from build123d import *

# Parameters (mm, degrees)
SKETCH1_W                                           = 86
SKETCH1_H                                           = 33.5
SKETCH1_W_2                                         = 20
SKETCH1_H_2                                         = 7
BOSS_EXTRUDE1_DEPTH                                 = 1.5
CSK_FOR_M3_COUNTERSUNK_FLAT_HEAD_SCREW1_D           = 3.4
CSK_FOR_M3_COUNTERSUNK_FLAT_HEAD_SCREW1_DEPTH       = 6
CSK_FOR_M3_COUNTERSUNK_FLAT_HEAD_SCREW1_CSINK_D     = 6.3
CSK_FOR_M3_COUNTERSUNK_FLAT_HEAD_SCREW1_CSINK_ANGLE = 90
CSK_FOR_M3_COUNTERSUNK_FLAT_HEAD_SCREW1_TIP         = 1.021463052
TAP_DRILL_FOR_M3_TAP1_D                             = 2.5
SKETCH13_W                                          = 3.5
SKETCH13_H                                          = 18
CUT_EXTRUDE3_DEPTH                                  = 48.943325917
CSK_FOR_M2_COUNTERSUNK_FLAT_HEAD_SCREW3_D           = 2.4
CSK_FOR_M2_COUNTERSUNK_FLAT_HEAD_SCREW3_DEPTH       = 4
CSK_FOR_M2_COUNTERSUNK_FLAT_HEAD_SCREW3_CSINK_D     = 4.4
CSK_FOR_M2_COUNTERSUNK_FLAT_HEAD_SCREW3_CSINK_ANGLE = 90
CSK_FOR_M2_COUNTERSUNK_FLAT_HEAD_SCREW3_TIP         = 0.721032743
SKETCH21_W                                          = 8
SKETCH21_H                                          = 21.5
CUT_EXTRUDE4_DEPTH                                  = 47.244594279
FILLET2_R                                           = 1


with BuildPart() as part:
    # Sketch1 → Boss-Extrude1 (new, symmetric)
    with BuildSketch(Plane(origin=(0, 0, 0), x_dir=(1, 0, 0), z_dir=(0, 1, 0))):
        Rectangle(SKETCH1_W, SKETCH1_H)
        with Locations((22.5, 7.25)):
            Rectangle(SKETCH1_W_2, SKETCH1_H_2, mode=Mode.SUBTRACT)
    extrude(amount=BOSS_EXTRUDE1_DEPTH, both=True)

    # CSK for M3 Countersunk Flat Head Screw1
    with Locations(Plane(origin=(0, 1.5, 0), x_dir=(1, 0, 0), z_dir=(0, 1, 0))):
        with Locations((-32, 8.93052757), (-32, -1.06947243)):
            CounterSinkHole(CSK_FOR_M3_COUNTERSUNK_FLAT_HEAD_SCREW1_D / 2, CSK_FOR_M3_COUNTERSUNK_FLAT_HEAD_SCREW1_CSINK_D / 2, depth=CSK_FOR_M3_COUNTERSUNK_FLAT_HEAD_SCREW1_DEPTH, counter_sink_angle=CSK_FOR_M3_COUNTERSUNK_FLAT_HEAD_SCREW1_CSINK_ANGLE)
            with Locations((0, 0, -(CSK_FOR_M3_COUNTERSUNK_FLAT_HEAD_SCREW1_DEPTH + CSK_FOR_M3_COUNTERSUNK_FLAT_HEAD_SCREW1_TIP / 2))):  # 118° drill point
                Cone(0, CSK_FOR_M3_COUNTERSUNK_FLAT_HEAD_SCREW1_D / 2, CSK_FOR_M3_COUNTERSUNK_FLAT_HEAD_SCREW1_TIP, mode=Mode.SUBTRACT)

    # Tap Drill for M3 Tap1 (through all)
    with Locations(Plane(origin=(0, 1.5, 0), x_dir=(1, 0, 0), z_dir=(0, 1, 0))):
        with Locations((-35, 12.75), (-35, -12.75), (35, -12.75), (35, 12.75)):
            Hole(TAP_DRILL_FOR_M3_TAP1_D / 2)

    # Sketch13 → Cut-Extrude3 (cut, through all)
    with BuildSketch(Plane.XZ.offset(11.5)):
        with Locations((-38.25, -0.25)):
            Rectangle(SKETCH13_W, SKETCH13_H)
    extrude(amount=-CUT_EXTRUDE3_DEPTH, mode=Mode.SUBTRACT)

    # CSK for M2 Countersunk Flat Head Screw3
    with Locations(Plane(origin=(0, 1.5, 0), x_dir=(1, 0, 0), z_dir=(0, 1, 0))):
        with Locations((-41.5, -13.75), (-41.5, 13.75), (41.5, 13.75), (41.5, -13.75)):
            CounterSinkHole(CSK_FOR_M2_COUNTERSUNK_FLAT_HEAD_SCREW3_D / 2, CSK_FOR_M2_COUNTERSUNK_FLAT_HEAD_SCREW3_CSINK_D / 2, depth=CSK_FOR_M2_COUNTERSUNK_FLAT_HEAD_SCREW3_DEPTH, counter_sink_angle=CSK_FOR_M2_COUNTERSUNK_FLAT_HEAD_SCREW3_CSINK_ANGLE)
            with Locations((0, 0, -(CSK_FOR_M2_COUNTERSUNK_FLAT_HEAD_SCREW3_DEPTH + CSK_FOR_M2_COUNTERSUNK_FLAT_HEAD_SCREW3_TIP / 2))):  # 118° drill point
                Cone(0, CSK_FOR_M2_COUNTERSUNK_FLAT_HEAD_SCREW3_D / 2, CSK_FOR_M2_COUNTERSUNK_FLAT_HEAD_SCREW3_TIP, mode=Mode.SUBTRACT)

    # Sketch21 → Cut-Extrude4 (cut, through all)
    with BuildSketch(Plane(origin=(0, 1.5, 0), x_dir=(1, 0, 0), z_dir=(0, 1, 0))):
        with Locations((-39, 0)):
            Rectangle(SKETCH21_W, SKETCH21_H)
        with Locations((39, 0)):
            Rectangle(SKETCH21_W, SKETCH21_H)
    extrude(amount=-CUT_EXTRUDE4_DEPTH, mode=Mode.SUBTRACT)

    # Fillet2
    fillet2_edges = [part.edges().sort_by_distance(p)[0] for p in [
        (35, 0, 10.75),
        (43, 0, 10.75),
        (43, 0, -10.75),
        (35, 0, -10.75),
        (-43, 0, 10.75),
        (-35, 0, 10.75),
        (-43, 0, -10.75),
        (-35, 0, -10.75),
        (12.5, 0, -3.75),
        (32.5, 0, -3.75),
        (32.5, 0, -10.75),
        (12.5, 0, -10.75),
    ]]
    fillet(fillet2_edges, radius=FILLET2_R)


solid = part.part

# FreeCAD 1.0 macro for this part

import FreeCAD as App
import Part
import Sketcher

V = App.Vector


def edges_at(feature, points):
    """Names of the edges that pass closest to the given points."""
    edges = feature.Shape.Edges
    near = lambda p: min(range(len(edges)), key=lambda i: edges[i].distToShape(Part.Vertex(*p))[0])
    return sorted({f"Edge{near(p) + 1}" for p in points})

doc = App.newDocument("Part")
params = doc.addObject("Spreadsheet::Sheet", "Params")
for row, (alias, value) in enumerate([
    ("sketch1_width", "86 mm"),
    ("sketch1_width2", "20 mm"),
    ("sketch1_height", "7 mm"),
    ("sketch1_height2", "33.5 mm"),
    ("pad1_length", "3 mm"),
    ("sketch2_diameter", "3.4 mm"),
    ("hole_diameter", "3.4 mm"),
    ("hole_depth", "6 mm"),
    ("hole_csink_diameter", "6.3 mm"),
    ("sketch3_diameter", "2.5 mm"),
    ("hole2_diameter", "2.5 mm"),
    ("sketch4_height", "18 mm"),
    ("sketch4_width", "3.5 mm"),
    ("sketch5_diameter", "2.4 mm"),
    ("hole3_diameter", "2.4 mm"),
    ("hole3_depth", "4 mm"),
    ("hole3_csink_diameter", "4.4 mm"),
    ("sketch6_width", "8 mm"),
    ("sketch6_height", "21.5 mm"),
    ("fillet_radius", "1 mm"),
], start=1):
    params.set(f"A{row}", alias)
    params.set(f"B{row}", "=" + value)
    params.setAlias(f"B{row}", alias)

body = doc.addObject("PartDesign::Body", "Body")

sketch1 = doc.addObject("Sketcher::SketchObject", "Sketch")
body.addObject(sketch1)
sketch1.AttachmentSupport = (doc.XZ_Plane, [""])
sketch1.MapMode = "FlatFace"
sketch1.addGeometry([
    Part.LineSegment(V(-43, -17, 0), V(-43, 17, 0)),
    Part.LineSegment(V(-43, 17, 0), V(43, 17, 0)),
    Part.LineSegment(V(43, 17, 0), V(43, -17, 0)),
    Part.LineSegment(V(43, -17, 0), V(-43, -17, 0)),
    Part.LineSegment(V(32, -4, 0), V(12, -4, 0)),
    Part.LineSegment(V(12, -4, 0), V(12, -11, 0)),
    Part.LineSegment(V(12, -11, 0), V(32, -11, 0)),
    Part.LineSegment(V(32, -11, 0), V(32, -4, 0)),
], False)
sketch1.addConstraint([
    Sketcher.Constraint("Coincident", 0, 2, 1, 1),
    Sketcher.Constraint("Coincident", 1, 2, 2, 1),
    Sketcher.Constraint("Coincident", 2, 2, 3, 1),
    Sketcher.Constraint("Coincident", 3, 2, 0, 1),
    Sketcher.Constraint("Coincident", 4, 2, 5, 1),
    Sketcher.Constraint("Coincident", 5, 2, 6, 1),
    Sketcher.Constraint("Coincident", 6, 2, 7, 1),
    Sketcher.Constraint("Coincident", 7, 2, 4, 1),
    Sketcher.Constraint("Vertical", 0),
    Sketcher.Constraint("Horizontal", 1),
    Sketcher.Constraint("Vertical", 2),
    Sketcher.Constraint("Horizontal", 3),
    Sketcher.Constraint("Horizontal", 4),
    Sketcher.Constraint("Vertical", 5),
    Sketcher.Constraint("Horizontal", 6),
    Sketcher.Constraint("Vertical", 7),
    Sketcher.Constraint("Symmetric", 0, 2, 2, 2, -1, 1),
    Sketcher.Constraint("DistanceX", 1, 1, 1, 2, 86.0),
    Sketcher.Constraint("DistanceX", 4, 2, 4, 1, 20.0),
    Sketcher.Constraint("DistanceY", 5, 2, 5, 1, 7.0),
    Sketcher.Constraint("DistanceY", 0, 1, 0, 2, 33.5),
    Sketcher.Constraint("DistanceY", 2, 2, 4, 2, 13.0),
    Sketcher.Constraint("DistanceX", -1, 1, 4, 2, 12.5),
])
sketch1.setExpression("Constraints[17]", "Params.sketch1_width")
sketch1.setExpression("Constraints[18]", "Params.sketch1_width2")
sketch1.setExpression("Constraints[19]", "Params.sketch1_height")
sketch1.setExpression("Constraints[20]", "Params.sketch1_height2")
pad1 = doc.addObject("PartDesign::Pad", "Pad")
body.addObject(pad1)
pad1.Profile = sketch1
pad1.setExpression("Length", "Params.pad1_length")
pad1.Midplane = True

sketch2 = doc.addObject("Sketcher::SketchObject", "Sketch001")
body.addObject(sketch2)
sketch2.AttachmentSupport = (doc.XZ_Plane, [""])
sketch2.MapMode = "FlatFace"
sketch2.AttachmentOffset = App.Placement(V(0, 0, -1.5), App.Rotation())
sketch2.addGeometry([
    Part.Circle(V(-32, -8.9, 0), V(0, 0, 1), 1.7),
    Part.Circle(V(-32, 1.1, 0), V(0, 0, 1), 1.7),
], False)
sketch2.addConstraint([
    Sketcher.Constraint("Equal", 0, 1),
    Sketcher.Constraint("Vertical", 0, 3, 1, 3),
    Sketcher.Constraint("Diameter", 0, 3.4),
    Sketcher.Constraint("DistanceX", 0, 3, -1, 1, 32.0),
    Sketcher.Constraint("DistanceY", 0, 3, 1, 3, 10.0),
    Sketcher.Constraint("DistanceY", 0, 3, -1, 1, 8.930528),
])
sketch2.setExpression("Constraints[2]", "Params.sketch2_diameter")
doc.recompute()
hole = doc.addObject("PartDesign::Hole", "Hole")
body.addObject(hole)
hole.Profile = sketch2
hole.ThreadType = "None"
hole.setExpression("Diameter", "Params.hole_diameter")
hole.DepthType = "Dimension"
hole.setExpression("Depth", "Params.hole_depth")
hole.DrillPoint = "Angled"
hole.DrillPointAngle = 118
hole.HoleCutType = "Countersink"
hole.setExpression("HoleCutDiameter", "Params.hole_csink_diameter")
hole.HoleCutCountersinkAngle = 90
hole.Reversed = True

sketch3 = doc.addObject("Sketcher::SketchObject", "Sketch002")
body.addObject(sketch3)
sketch3.AttachmentSupport = (doc.XZ_Plane, [""])
sketch3.MapMode = "FlatFace"
sketch3.AttachmentOffset = App.Placement(V(0, 0, -1.5), App.Rotation())
sketch3.addGeometry([
    Part.Circle(V(-35, -12.8, 0), V(0, 0, 1), 1.2),
    Part.Circle(V(-35, 12.8, 0), V(0, 0, 1), 1.2),
    Part.Circle(V(35, 12.8, 0), V(0, 0, 1), 1.2),
    Part.Circle(V(35, -12.8, 0), V(0, 0, 1), 1.2),
], False)
sketch3.addConstraint([
    Sketcher.Constraint("Equal", 0, 1),
    Sketcher.Constraint("Equal", 1, 2),
    Sketcher.Constraint("Equal", 2, 3),
    Sketcher.Constraint("Symmetric", 0, 3, 2, 3, -1, 1),
    Sketcher.Constraint("Symmetric", 1, 3, 3, 3, -1, 1),
    Sketcher.Constraint("Symmetric", 1, 3, 2, 3, -2),
    Sketcher.Constraint("Diameter", 0, 2.5),
    Sketcher.Constraint("DistanceX", 0, 3, -1, 1, 35.0),
    Sketcher.Constraint("DistanceY", 0, 3, 1, 3, 25.5),
])
sketch3.setExpression("Constraints[6]", "Params.sketch3_diameter")
doc.recompute()
hole2 = doc.addObject("PartDesign::Hole", "Hole001")
body.addObject(hole2)
hole2.Profile = sketch3
hole2.ThreadType = "None"
hole2.setExpression("Diameter", "Params.hole2_diameter")
hole2.DepthType = "ThroughAll"
hole2.Reversed = True

sketch4 = doc.addObject("Sketcher::SketchObject", "Sketch003")
body.addObject(sketch4)
sketch4.AttachmentSupport = (doc.XZ_Plane, [""])
sketch4.MapMode = "FlatFace"
sketch4.AttachmentOffset = App.Placement(V(0, 0, 11.5), App.Rotation())
sketch4.addGeometry([
    Part.LineSegment(V(-40, 8.8, 0), V(-40, -9.2, 0)),
    Part.LineSegment(V(-40, -9.2, 0), V(-36.5, -9.2, 0)),
    Part.LineSegment(V(-36.5, -9.2, 0), V(-36.5, 8.8, 0)),
    Part.LineSegment(V(-36.5, 8.8, 0), V(-40, 8.8, 0)),
], False)
sketch4.addConstraint([
    Sketcher.Constraint("Coincident", 0, 2, 1, 1),
    Sketcher.Constraint("Coincident", 1, 2, 2, 1),
    Sketcher.Constraint("Coincident", 2, 2, 3, 1),
    Sketcher.Constraint("Coincident", 3, 2, 0, 1),
    Sketcher.Constraint("Vertical", 0),
    Sketcher.Constraint("Horizontal", 1),
    Sketcher.Constraint("Vertical", 2),
    Sketcher.Constraint("Horizontal", 3),
    Sketcher.Constraint("DistanceY", 0, 2, 0, 1, 18.0),
    Sketcher.Constraint("DistanceX", 1, 1, 1, 2, 3.5),
    Sketcher.Constraint("DistanceX", 0, 2, -1, 1, 40.0),
    Sketcher.Constraint("DistanceY", 0, 2, -1, 1, 9.25),
])
sketch4.setExpression("Constraints[8]", "Params.sketch4_height")
sketch4.setExpression("Constraints[9]", "Params.sketch4_width")
pocket1 = doc.addObject("PartDesign::Pocket", "Pocket")
body.addObject(pocket1)
pocket1.Profile = sketch4
pocket1.Type = "ThroughAll"

sketch5 = doc.addObject("Sketcher::SketchObject", "Sketch004")
body.addObject(sketch5)
sketch5.AttachmentSupport = (doc.XZ_Plane, [""])
sketch5.MapMode = "FlatFace"
sketch5.AttachmentOffset = App.Placement(V(0, 0, -1.5), App.Rotation())
sketch5.addGeometry([
    Part.Circle(V(-41.5, 13.8, 0), V(0, 0, 1), 1.2),
    Part.Circle(V(-41.5, -13.8, 0), V(0, 0, 1), 1.2),
    Part.Circle(V(41.5, -13.8, 0), V(0, 0, 1), 1.2),
    Part.Circle(V(41.5, 13.8, 0), V(0, 0, 1), 1.2),
], False)
sketch5.addConstraint([
    Sketcher.Constraint("Equal", 0, 1),
    Sketcher.Constraint("Equal", 1, 2),
    Sketcher.Constraint("Equal", 2, 3),
    Sketcher.Constraint("Symmetric", 0, 3, 2, 3, -1, 1),
    Sketcher.Constraint("Symmetric", 1, 3, 3, 3, -1, 1),
    Sketcher.Constraint("Symmetric", 1, 3, 2, 3, -2),
    Sketcher.Constraint("Diameter", 0, 2.4),
    Sketcher.Constraint("DistanceX", 1, 3, 2, 3, 83.0),
    Sketcher.Constraint("DistanceY", 1, 3, 0, 3, 27.5),
])
sketch5.setExpression("Constraints[6]", "Params.sketch5_diameter")
doc.recompute()
hole3 = doc.addObject("PartDesign::Hole", "Hole002")
body.addObject(hole3)
hole3.Profile = sketch5
hole3.ThreadType = "None"
hole3.setExpression("Diameter", "Params.hole3_diameter")
hole3.DepthType = "Dimension"
hole3.setExpression("Depth", "Params.hole3_depth")
hole3.DrillPoint = "Angled"
hole3.DrillPointAngle = 118
hole3.HoleCutType = "Countersink"
hole3.setExpression("HoleCutDiameter", "Params.hole3_csink_diameter")
hole3.HoleCutCountersinkAngle = 90
hole3.Reversed = True

sketch6 = doc.addObject("Sketcher::SketchObject", "Sketch005")
body.addObject(sketch6)
sketch6.AttachmentSupport = (doc.XZ_Plane, [""])
sketch6.MapMode = "FlatFace"
sketch6.AttachmentOffset = App.Placement(V(0, 0, -1.5), App.Rotation())
sketch6.addGeometry([
    Part.LineSegment(V(-43, -11, 0), V(-43, 11, 0)),
    Part.LineSegment(V(-43, 11, 0), V(-35, 11, 0)),
    Part.LineSegment(V(-35, 11, 0), V(-35, -11, 0)),
    Part.LineSegment(V(-35, -11, 0), V(-43, -11, 0)),
    Part.LineSegment(V(35, -11, 0), V(35, 11, 0)),
    Part.LineSegment(V(35, 11, 0), V(43, 11, 0)),
    Part.LineSegment(V(43, 11, 0), V(43, -11, 0)),
    Part.LineSegment(V(43, -11, 0), V(35, -11, 0)),
], False)
sketch6.addConstraint([
    Sketcher.Constraint("Coincident", 0, 2, 1, 1),
    Sketcher.Constraint("Coincident", 1, 2, 2, 1),
    Sketcher.Constraint("Coincident", 2, 2, 3, 1),
    Sketcher.Constraint("Coincident", 3, 2, 0, 1),
    Sketcher.Constraint("Coincident", 4, 2, 5, 1),
    Sketcher.Constraint("Coincident", 5, 2, 6, 1),
    Sketcher.Constraint("Coincident", 6, 2, 7, 1),
    Sketcher.Constraint("Coincident", 7, 2, 4, 1),
    Sketcher.Constraint("Vertical", 0),
    Sketcher.Constraint("Horizontal", 1),
    Sketcher.Constraint("Vertical", 2),
    Sketcher.Constraint("Horizontal", 3),
    Sketcher.Constraint("Vertical", 4),
    Sketcher.Constraint("Horizontal", 5),
    Sketcher.Constraint("Vertical", 6),
    Sketcher.Constraint("Horizontal", 7),
    Sketcher.Constraint("Symmetric", 2, 2, 4, 2, -1, 1),
    Sketcher.Constraint("Symmetric", 0, 2, 6, 2, -1, 1),
    Sketcher.Constraint("Horizontal", 1, 2, 4, 2),
    Sketcher.Constraint("DistanceX", 1, 1, 1, 2, 8.0),
    Sketcher.Constraint("DistanceY", 0, 1, 0, 2, 21.5),
    Sketcher.Constraint("DistanceX", 0, 2, -1, 1, 43.0),
])
sketch6.setExpression("Constraints[19]", "Params.sketch6_width")
sketch6.setExpression("Constraints[20]", "Params.sketch6_height")
pocket2 = doc.addObject("PartDesign::Pocket", "Pocket001")
body.addObject(pocket2)
pocket2.Profile = sketch6
pocket2.Type = "ThroughAll"
pocket2.Reversed = True
doc.recompute()

fillet = doc.addObject("PartDesign::Fillet", "Fillet")
body.addObject(fillet)
fillet.Base = (pocket2, edges_at(pocket2, [
    (35, 0, 10.75),
    (43, 0, 10.75),
    (43, 0, -10.75),
    (35, 0, -10.75),
    (-43, 0, 10.75),
    (-35, 0, 10.75),
    (-43, 0, -10.75),
    (-35, 0, -10.75),
    (12.5, 0, -3.75),
    (32.5, 0, -3.75),
    (32.5, 0, -10.75),
    (12.5, 0, -10.75),
]))
fillet.setExpression("Radius", "Params.fillet_radius")

doc.recompute()
